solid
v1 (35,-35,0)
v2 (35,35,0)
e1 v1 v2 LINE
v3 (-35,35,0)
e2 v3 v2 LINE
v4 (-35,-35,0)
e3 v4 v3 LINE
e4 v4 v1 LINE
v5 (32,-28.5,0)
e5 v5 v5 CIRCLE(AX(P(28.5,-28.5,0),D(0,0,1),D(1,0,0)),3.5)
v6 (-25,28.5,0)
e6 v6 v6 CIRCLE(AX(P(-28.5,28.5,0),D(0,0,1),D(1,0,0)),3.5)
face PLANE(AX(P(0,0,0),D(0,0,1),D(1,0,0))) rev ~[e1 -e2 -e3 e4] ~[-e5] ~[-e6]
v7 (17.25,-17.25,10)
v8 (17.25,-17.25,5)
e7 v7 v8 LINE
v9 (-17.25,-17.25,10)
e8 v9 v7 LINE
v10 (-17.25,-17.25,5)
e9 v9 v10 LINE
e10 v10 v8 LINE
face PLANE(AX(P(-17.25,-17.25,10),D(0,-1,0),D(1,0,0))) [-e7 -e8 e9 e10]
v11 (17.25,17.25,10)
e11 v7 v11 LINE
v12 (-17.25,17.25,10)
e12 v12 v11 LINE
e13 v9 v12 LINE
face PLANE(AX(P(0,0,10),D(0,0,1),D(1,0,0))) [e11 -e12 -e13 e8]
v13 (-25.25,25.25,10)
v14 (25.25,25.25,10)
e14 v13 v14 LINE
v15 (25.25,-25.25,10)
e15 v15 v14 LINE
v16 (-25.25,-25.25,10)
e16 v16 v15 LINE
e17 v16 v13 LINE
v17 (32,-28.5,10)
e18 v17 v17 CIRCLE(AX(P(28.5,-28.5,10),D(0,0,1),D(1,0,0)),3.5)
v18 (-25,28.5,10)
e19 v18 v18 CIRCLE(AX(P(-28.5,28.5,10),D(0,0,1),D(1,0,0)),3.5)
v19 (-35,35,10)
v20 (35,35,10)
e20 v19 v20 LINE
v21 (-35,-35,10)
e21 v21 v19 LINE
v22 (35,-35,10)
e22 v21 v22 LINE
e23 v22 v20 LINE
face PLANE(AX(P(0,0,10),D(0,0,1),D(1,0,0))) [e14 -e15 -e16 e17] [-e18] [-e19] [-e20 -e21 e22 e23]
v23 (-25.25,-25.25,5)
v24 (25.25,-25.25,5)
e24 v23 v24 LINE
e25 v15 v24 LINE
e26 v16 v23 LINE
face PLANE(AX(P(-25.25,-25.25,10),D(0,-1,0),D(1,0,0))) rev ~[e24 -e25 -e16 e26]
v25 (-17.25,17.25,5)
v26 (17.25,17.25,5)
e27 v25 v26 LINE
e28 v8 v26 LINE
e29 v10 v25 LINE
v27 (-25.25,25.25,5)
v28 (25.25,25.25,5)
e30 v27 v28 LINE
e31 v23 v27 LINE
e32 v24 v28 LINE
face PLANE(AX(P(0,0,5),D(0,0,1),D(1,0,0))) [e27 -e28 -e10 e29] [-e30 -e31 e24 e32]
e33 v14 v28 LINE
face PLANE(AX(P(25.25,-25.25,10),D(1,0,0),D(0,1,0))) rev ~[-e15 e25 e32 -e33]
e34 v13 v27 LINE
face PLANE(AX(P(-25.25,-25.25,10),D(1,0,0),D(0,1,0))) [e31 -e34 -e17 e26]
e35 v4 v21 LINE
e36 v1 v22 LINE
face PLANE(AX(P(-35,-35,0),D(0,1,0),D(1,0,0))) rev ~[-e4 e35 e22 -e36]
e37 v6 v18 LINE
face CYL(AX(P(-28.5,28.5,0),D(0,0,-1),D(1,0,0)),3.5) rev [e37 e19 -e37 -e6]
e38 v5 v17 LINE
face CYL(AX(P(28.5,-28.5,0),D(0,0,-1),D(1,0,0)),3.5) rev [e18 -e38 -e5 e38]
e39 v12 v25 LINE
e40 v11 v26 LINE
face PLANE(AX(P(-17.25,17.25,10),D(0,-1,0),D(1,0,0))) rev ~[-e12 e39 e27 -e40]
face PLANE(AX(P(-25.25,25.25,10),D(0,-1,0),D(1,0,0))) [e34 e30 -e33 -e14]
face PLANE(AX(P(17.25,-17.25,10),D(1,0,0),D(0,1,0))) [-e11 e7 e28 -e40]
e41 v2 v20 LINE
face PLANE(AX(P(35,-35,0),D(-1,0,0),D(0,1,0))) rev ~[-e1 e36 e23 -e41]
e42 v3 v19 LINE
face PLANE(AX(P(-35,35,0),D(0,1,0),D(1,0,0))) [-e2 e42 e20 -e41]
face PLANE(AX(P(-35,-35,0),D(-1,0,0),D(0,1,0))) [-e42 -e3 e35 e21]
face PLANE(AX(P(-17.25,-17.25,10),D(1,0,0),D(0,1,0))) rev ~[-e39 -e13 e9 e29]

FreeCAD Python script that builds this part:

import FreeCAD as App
import Part
import Sketcher

V = App.Vector


def add_polygon(sketch, points):
    """Adds a closed chain of lines whose ends are joined by coincident constraints."""
    first, n = sketch.GeometryCount, len(points)
    for a, b in zip(points, points[1:] + points[:1]):
        sketch.addGeometry(Part.LineSegment(App.Vector(*a, 0), App.Vector(*b, 0)), False)
    for i in range(n):
        sketch.addConstraint(Sketcher.Constraint("Coincident", first + i, 2, first + (i + 1) % n, 1))

doc = App.newDocument("Part")
params = doc.addObject("Spreadsheet::Sheet", "Params")
for row, (alias, value) in enumerate([
    ("sketch1_diameter", "7 mm"),
    ("sketch1_width", "70 mm"),
    ("pad1_length", "10 mm"),
    ("sketch2_width", "50.5 mm"),
    ("sketch2_width2", "34.5 mm"),
    ("pocket1_length", "5 mm"),
], start=1):
    params.set(f"A{row}", alias)
    params.set(f"B{row}", "=" + value)
    params.setAlias(f"B{row}", alias)

body = doc.addObject("PartDesign::Body", "Body")

# Sketch on XY plane
sketch1 = body.newObject("Sketcher::SketchObject", "Sketch")
sketch1.AttachmentSupport = (doc.getObject("XY_Plane"), [""])
sketch1.MapMode = "FlatFace"
add_polygon(sketch1, [(-35, 35), (-35, -35), (35, -35), (35, 35)])  # lines 0-3
sketch1.addGeometry(Part.Circle(V(28.5, -28.5, 0), V(0, 0, 1), 3.5), False)  # 4
sketch1.addGeometry(Part.Circle(V(-28.5, 28.5, 0), V(0, 0, 1), 3.5), False)  # 5
sketch1.addConstraint([
    Sketcher.Constraint("Vertical", 0),
    Sketcher.Constraint("Horizontal", 1),
    Sketcher.Constraint("Vertical", 2),
    Sketcher.Constraint("Horizontal", 3),
    Sketcher.Constraint("Equal", 4, 5),
    Sketcher.Constraint("Symmetric", 4, 3, 5, 3, -1, 1),
    Sketcher.Constraint("Symmetric", 0, 2, 2, 2, -1, 1),
    Sketcher.Constraint("Equal", 3, 0),
    Sketcher.Constraint("Diameter", 4, 7.0),
    Sketcher.Constraint("DistanceX", 1, 1, 1, 2, 70.0),
    Sketcher.Constraint("DistanceX", 5, 3, 4, 3, 57.0),
    Sketcher.Constraint("DistanceY", 4, 3, 5, 3, 57.0),
])
sketch1.setExpression("Constraints[12]", "Params.sketch1_diameter")
sketch1.setExpression("Constraints[13]", "Params.sketch1_width")
pad1 = body.newObject("PartDesign::Pad", "Pad")
pad1.Profile = sketch1
pad1.setExpression("Length", "Params.pad1_length")

# Sketch on XY plane
sketch2 = body.newObject("Sketcher::SketchObject", "Sketch001")
sketch2.AttachmentSupport = (doc.getObject("XY_Plane"), [""])
sketch2.MapMode = "FlatFace"
sketch2.AttachmentOffset = App.Placement(V(0, 0, 10), App.Rotation())
add_polygon(sketch2, [(-25, 25), (-25, -25), (25, -25), (25, 25)])  # lines 0-3
add_polygon(sketch2, [(17, -17), (-17, -17), (-17, 17), (17, 17)])  # lines 4-7
sketch2.addConstraint([
    Sketcher.Constraint("Vertical", 0),
    Sketcher.Constraint("Horizontal", 1),
    Sketcher.Constraint("Vertical", 2),
    Sketcher.Constraint("Horizontal", 3),
    Sketcher.Constraint("Horizontal", 4),
    Sketcher.Constraint("Vertical", 5),
    Sketcher.Constraint("Horizontal", 6),
    Sketcher.Constraint("Vertical", 7),
    Sketcher.Constraint("Symmetric", 0, 2, 2, 2, -1, 1),
    Sketcher.Constraint("Symmetric", 4, 2, 6, 2, -1, 1),
    Sketcher.Constraint("Equal", 3, 0),
    Sketcher.Constraint("Equal", 6, 5),
    Sketcher.Constraint("DistanceX", 1, 1, 1, 2, 50.5),
    Sketcher.Constraint("DistanceX", 4, 2, 4, 1, 34.5),
])
sketch2.setExpression("Constraints[20]", "Params.sketch2_width")
sketch2.setExpression("Constraints[21]", "Params.sketch2_width2")
pocket1 = body.newObject("PartDesign::Pocket", "Pocket")
pocket1.Profile = sketch2
pocket1.setExpression("Length", "Params.pocket1_length")

doc.recompute()
